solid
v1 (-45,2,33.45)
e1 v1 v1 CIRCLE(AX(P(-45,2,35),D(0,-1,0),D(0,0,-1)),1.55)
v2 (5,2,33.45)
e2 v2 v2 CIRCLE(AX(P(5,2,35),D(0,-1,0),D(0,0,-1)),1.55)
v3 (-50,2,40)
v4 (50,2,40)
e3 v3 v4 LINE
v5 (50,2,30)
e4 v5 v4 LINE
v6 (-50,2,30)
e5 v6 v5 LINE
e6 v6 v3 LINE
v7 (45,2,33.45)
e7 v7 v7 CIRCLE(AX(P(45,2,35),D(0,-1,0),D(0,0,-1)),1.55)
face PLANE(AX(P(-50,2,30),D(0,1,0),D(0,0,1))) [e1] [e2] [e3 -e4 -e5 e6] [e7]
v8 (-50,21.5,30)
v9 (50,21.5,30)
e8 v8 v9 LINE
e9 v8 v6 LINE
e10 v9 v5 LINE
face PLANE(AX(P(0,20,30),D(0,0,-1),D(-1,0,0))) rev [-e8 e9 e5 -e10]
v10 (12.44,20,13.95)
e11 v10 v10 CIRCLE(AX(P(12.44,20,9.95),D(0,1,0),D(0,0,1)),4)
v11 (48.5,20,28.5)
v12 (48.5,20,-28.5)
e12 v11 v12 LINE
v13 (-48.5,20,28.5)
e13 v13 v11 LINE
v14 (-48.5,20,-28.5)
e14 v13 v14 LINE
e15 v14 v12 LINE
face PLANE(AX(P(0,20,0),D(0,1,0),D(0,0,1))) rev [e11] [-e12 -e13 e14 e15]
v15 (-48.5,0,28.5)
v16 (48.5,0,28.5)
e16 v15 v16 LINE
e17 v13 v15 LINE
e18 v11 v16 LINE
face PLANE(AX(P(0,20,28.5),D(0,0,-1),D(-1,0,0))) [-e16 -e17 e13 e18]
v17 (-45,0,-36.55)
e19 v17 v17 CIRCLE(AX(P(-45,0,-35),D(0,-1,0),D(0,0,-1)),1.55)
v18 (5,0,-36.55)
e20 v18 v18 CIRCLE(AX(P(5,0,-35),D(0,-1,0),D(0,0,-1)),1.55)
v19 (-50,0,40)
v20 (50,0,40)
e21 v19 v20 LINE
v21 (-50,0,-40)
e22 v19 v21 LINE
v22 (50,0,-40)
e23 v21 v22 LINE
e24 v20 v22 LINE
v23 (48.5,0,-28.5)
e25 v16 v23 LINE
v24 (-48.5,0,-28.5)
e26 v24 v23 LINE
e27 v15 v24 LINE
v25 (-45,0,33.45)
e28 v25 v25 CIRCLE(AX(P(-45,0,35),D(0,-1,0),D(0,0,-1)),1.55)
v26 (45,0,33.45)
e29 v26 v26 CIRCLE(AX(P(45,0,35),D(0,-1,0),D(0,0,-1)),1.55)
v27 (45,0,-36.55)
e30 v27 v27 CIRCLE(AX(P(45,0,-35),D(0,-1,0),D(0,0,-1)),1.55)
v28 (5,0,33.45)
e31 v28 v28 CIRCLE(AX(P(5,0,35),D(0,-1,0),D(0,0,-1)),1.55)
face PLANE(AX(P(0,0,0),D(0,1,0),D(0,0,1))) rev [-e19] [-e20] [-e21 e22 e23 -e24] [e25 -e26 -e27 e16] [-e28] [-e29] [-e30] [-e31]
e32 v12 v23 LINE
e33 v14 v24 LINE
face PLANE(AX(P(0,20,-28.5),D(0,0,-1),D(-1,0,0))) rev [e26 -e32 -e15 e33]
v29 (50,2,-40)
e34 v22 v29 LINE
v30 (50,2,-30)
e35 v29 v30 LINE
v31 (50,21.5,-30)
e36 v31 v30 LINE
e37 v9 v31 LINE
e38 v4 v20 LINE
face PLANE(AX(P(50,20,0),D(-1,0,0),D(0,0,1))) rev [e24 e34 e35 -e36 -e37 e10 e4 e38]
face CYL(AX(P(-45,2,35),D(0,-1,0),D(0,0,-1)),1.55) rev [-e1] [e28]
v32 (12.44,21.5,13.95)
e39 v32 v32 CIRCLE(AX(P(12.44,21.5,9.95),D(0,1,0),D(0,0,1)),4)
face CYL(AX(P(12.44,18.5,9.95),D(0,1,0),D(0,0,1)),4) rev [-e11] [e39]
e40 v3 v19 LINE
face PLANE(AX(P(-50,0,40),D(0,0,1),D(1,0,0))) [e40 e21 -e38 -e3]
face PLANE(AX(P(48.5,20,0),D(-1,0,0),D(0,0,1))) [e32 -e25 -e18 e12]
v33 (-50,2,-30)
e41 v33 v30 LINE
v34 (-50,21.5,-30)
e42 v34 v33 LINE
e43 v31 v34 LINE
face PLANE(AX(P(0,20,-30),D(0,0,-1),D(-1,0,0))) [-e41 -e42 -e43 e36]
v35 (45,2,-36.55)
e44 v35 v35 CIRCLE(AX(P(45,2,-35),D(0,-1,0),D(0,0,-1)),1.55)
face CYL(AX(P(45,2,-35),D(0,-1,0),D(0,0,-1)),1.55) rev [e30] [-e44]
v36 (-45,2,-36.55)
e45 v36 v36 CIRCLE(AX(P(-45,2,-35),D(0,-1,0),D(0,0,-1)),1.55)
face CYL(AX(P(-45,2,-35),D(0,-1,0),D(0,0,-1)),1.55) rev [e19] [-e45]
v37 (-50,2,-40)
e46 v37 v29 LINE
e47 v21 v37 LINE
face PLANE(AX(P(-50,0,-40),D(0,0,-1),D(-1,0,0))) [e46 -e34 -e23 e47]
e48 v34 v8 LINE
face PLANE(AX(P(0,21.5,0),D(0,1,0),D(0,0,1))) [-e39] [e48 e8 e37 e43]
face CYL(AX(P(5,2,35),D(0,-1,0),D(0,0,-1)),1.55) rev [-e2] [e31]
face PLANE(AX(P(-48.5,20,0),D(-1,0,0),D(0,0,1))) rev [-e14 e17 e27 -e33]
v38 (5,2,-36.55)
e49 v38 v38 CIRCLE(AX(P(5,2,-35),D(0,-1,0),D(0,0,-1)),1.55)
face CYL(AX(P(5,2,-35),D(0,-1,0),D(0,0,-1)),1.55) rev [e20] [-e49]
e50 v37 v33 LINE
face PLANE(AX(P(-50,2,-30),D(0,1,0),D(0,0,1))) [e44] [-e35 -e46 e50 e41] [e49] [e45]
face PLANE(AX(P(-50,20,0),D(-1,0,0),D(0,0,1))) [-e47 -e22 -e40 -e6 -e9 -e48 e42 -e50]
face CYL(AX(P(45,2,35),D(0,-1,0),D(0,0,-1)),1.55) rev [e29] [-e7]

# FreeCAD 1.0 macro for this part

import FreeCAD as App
import Part
import Sketcher
Q = App.Units.Quantity


def add_polygon(sketch, points):
    """Adds a closed chain of lines whose ends are joined by coincident constraints."""
    first, n = sketch.GeometryCount, len(points)
    for a, b in zip(points, points[1:] + points[:1]):
        sketch.addGeometry(Part.LineSegment(App.Vector(*a, 0), App.Vector(*b, 0)), False)
    for i in range(n):
        sketch.addConstraint(Sketcher.Constraint("Coincident", first + i, 2, first + (i + 1) % n, 1))

doc = App.newDocument("Part")
body = doc.addObject("PartDesign::Body", "Body")

# Sketch on XZ plane
sketch1 = body.newObject("Sketcher::SketchObject", "Sketch")
sketch1.AttachmentSupport = (doc.getObject("XZ_Plane"), [""])
sketch1.MapMode = "FlatFace"
add_polygon(sketch1, [(-50, -30), (-50, 30), (50, 30), (50, -30)])  # lines 0-3
add_polygon(sketch1, [(48, 28), (-48, 28), (-48, -28), (48, -28)])  # lines 4-7
sketch1.addConstraint(Sketcher.Constraint("Vertical", 0))
sketch1.addConstraint(Sketcher.Constraint("Horizontal", 1))
sketch1.addConstraint(Sketcher.Constraint("Vertical", 2))
sketch1.addConstraint(Sketcher.Constraint("Horizontal", 3))
sketch1.addConstraint(Sketcher.Constraint("Horizontal", 4))
sketch1.addConstraint(Sketcher.Constraint("Vertical", 5))
sketch1.addConstraint(Sketcher.Constraint("Horizontal", 6))
sketch1.addConstraint(Sketcher.Constraint("Vertical", 7))
sketch1.addConstraint(Sketcher.Constraint("Symmetric", 0, 2, 2, 2, -1, 1))
sketch1.addConstraint(Sketcher.Constraint("Symmetric", 4, 2, 6, 2, -1, 1))
sketch1.addConstraint(Sketcher.Constraint("DistanceX", 1, 1, 1, 2, Q("100 mm")))
sketch1.addConstraint(Sketcher.Constraint("DistanceX", 4, 2, 4, 1, Q("97 mm")))
sketch1.addConstraint(Sketcher.Constraint("DistanceY", 0, 1, 0, 2, Q("60 mm")))
sketch1.addConstraint(Sketcher.Constraint("DistanceY", 5, 2, 5, 1, Q("57 mm")))
pad1 = body.newObject("PartDesign::Pad", "Pad")
pad1.Profile = sketch1
pad1.Length = 20
pad1.Reversed = True

# Sketch on XZ plane
sketch2 = body.newObject("Sketcher::SketchObject", "Sketch001")
sketch2.AttachmentSupport = (doc.getObject("XZ_Plane"), [""])
sketch2.MapMode = "FlatFace"
sketch2.AttachmentOffset = App.Placement(App.Vector(0, 0, -20), App.Rotation())
add_polygon(sketch2, [(-50, -30), (-50, 30), (50, 30), (50, -30)])  # lines 0-3
sketch2.addConstraint(Sketcher.Constraint("Vertical", 0))
sketch2.addConstraint(Sketcher.Constraint("Horizontal", 1))
sketch2.addConstraint(Sketcher.Constraint("Vertical", 2))
sketch2.addConstraint(Sketcher.Constraint("Horizontal", 3))
sketch2.addConstraint(Sketcher.Constraint("Symmetric", 0, 2, 2, 2, -1, 1))
sketch2.addConstraint(Sketcher.Constraint("DistanceX", 1, 1, 1, 2, Q("100 mm")))
sketch2.addConstraint(Sketcher.Constraint("DistanceY", 0, 1, 0, 2, Q("60 mm")))
pad2 = body.newObject("PartDesign::Pad", "Pad001")
pad2.Profile = sketch2
pad2.Length = 1.5
pad2.Reversed = True

# Sketch on YZ plane
sketch3 = body.newObject("Sketcher::SketchObject", "Sketch002")
sketch3.AttachmentSupport = (doc.getObject("YZ_Plane"), [""])
sketch3.MapMode = "FlatFace"
sketch3.AttachmentOffset = App.Placement(App.Vector(0, 0, 50), App.Rotation())
add_polygon(sketch3, [(2, 40), (0, 40), (0, 30), (2, 30)])  # lines 0-3
add_polygon(sketch3, [(2, -30), (0, -30), (0, -40), (2, -40)])  # lines 4-7
sketch3.addConstraint(Sketcher.Constraint("Horizontal", 0))
sketch3.addConstraint(Sketcher.Constraint("Vertical", 1))
sketch3.addConstraint(Sketcher.Constraint("Horizontal", 2))
sketch3.addConstraint(Sketcher.Constraint("Vertical", 3))
sketch3.addConstraint(Sketcher.Constraint("Horizontal", 4))
sketch3.addConstraint(Sketcher.Constraint("Vertical", 5))
sketch3.addConstraint(Sketcher.Constraint("Horizontal", 6))
sketch3.addConstraint(Sketcher.Constraint("Vertical", 7))
sketch3.addConstraint(Sketcher.Constraint("Symmetric", 1, 2, 4, 2, -1, 1))
sketch3.addConstraint(Sketcher.Constraint("Symmetric", 0, 2, 5, 2, -1))
sketch3.addConstraint(Sketcher.Constraint("Vertical", 3, 2, 6, 2))
sketch3.addConstraint(Sketcher.Constraint("DistanceX", 0, 2, 0, 1, Q("2 mm")))
sketch3.addConstraint(Sketcher.Constraint("DistanceY", 1, 2, 1, 1, Q("10 mm")))
sketch3.addConstraint(Sketcher.Constraint("DistanceY", -1, 1, 0, 2, Q("40 mm")))
pad3 = body.newObject("PartDesign::Pad", "Pad002")
pad3.Profile = sketch3
pad3.Length = 100
pad3.Reversed = True

# Sketch on XZ plane
sketch4 = body.newObject("Sketcher::SketchObject", "Sketch003")
sketch4.AttachmentSupport = (doc.getObject("XZ_Plane"), [""])
sketch4.MapMode = "FlatFace"
sketch4.addGeometry(Part.Circle(App.Vector(-45, 35, 0), App.Vector(0, 0, 1), 1.6), False)
sketch4.addGeometry(Part.Circle(App.Vector(45, 35, 0), App.Vector(0, 0, 1), 1.6), False)
sketch4.addGeometry(Part.Circle(App.Vector(45, -35, 0), App.Vector(0, 0, 1), 1.6), False)
sketch4.addGeometry(Part.Circle(App.Vector(-45, -35, 0), App.Vector(0, 0, 1), 1.6), False)
sketch4.addGeometry(Part.Circle(App.Vector(5, 35, 0), App.Vector(0, 0, 1), 1.6), False)
sketch4.addGeometry(Part.Circle(App.Vector(5, -35, 0), App.Vector(0, 0, 1), 1.6), False)
sketch4.addConstraint(Sketcher.Constraint("Equal", 0, 1))
sketch4.addConstraint(Sketcher.Constraint("Equal", 1, 2))
sketch4.addConstraint(Sketcher.Constraint("Equal", 2, 3))
sketch4.addConstraint(Sketcher.Constraint("Equal", 3, 4))
sketch4.addConstraint(Sketcher.Constraint("Equal", 4, 5))
sketch4.addConstraint(Sketcher.Constraint("Symmetric", 0, 3, 2, 3, -1, 1))
sketch4.addConstraint(Sketcher.Constraint("Symmetric", 1, 3, 3, 3, -1, 1))
sketch4.addConstraint(Sketcher.Constraint("Symmetric", 0, 3, 1, 3, -2))
sketch4.addConstraint(Sketcher.Constraint("Symmetric", 4, 3, 5, 3, -1))
sketch4.addConstraint(Sketcher.Constraint("Horizontal", 1, 3, 4, 3))
sketch4.addConstraint(Sketcher.Constraint("Diameter", 0, Q("3.1 mm")))
sketch4.addConstraint(Sketcher.Constraint("DistanceX", 0, 3, -1, 1, Q("45 mm")))
sketch4.addConstraint(Sketcher.Constraint("DistanceY", -1, 1, 0, 3, Q("35 mm")))
sketch4.addConstraint(Sketcher.Constraint("DistanceX", -1, 1, 4, 3, Q("5 mm")))
pocket1 = body.newObject("PartDesign::Pocket", "Pocket")
pocket1.Profile = sketch4
pocket1.Length = 2

# Sketch on XZ plane
sketch5 = body.newObject("Sketcher::SketchObject", "Sketch004")
sketch5.AttachmentSupport = (doc.getObject("XZ_Plane"), [""])
sketch5.MapMode = "FlatFace"
sketch5.AttachmentOffset = App.Placement(App.Vector(0, 0, -21.5), App.Rotation())
sketch5.addGeometry(Part.Circle(App.Vector(12.4, 9.9, 0), App.Vector(0, 0, 1), 4), False)
sketch5.addConstraint(Sketcher.Constraint("Diameter", 0, Q("8 mm")))
sketch5.addConstraint(Sketcher.Constraint("DistanceX", -1, 1, 0, 3, Q("12.44 mm")))
sketch5.addConstraint(Sketcher.Constraint("DistanceY", -1, 1, 0, 3, Q("9.95 mm")))
pocket2 = body.newObject("PartDesign::Pocket", "Pocket001")
pocket2.Profile = sketch5
pocket2.Length = 3
pocket2.Reversed = True

doc.recompute()
